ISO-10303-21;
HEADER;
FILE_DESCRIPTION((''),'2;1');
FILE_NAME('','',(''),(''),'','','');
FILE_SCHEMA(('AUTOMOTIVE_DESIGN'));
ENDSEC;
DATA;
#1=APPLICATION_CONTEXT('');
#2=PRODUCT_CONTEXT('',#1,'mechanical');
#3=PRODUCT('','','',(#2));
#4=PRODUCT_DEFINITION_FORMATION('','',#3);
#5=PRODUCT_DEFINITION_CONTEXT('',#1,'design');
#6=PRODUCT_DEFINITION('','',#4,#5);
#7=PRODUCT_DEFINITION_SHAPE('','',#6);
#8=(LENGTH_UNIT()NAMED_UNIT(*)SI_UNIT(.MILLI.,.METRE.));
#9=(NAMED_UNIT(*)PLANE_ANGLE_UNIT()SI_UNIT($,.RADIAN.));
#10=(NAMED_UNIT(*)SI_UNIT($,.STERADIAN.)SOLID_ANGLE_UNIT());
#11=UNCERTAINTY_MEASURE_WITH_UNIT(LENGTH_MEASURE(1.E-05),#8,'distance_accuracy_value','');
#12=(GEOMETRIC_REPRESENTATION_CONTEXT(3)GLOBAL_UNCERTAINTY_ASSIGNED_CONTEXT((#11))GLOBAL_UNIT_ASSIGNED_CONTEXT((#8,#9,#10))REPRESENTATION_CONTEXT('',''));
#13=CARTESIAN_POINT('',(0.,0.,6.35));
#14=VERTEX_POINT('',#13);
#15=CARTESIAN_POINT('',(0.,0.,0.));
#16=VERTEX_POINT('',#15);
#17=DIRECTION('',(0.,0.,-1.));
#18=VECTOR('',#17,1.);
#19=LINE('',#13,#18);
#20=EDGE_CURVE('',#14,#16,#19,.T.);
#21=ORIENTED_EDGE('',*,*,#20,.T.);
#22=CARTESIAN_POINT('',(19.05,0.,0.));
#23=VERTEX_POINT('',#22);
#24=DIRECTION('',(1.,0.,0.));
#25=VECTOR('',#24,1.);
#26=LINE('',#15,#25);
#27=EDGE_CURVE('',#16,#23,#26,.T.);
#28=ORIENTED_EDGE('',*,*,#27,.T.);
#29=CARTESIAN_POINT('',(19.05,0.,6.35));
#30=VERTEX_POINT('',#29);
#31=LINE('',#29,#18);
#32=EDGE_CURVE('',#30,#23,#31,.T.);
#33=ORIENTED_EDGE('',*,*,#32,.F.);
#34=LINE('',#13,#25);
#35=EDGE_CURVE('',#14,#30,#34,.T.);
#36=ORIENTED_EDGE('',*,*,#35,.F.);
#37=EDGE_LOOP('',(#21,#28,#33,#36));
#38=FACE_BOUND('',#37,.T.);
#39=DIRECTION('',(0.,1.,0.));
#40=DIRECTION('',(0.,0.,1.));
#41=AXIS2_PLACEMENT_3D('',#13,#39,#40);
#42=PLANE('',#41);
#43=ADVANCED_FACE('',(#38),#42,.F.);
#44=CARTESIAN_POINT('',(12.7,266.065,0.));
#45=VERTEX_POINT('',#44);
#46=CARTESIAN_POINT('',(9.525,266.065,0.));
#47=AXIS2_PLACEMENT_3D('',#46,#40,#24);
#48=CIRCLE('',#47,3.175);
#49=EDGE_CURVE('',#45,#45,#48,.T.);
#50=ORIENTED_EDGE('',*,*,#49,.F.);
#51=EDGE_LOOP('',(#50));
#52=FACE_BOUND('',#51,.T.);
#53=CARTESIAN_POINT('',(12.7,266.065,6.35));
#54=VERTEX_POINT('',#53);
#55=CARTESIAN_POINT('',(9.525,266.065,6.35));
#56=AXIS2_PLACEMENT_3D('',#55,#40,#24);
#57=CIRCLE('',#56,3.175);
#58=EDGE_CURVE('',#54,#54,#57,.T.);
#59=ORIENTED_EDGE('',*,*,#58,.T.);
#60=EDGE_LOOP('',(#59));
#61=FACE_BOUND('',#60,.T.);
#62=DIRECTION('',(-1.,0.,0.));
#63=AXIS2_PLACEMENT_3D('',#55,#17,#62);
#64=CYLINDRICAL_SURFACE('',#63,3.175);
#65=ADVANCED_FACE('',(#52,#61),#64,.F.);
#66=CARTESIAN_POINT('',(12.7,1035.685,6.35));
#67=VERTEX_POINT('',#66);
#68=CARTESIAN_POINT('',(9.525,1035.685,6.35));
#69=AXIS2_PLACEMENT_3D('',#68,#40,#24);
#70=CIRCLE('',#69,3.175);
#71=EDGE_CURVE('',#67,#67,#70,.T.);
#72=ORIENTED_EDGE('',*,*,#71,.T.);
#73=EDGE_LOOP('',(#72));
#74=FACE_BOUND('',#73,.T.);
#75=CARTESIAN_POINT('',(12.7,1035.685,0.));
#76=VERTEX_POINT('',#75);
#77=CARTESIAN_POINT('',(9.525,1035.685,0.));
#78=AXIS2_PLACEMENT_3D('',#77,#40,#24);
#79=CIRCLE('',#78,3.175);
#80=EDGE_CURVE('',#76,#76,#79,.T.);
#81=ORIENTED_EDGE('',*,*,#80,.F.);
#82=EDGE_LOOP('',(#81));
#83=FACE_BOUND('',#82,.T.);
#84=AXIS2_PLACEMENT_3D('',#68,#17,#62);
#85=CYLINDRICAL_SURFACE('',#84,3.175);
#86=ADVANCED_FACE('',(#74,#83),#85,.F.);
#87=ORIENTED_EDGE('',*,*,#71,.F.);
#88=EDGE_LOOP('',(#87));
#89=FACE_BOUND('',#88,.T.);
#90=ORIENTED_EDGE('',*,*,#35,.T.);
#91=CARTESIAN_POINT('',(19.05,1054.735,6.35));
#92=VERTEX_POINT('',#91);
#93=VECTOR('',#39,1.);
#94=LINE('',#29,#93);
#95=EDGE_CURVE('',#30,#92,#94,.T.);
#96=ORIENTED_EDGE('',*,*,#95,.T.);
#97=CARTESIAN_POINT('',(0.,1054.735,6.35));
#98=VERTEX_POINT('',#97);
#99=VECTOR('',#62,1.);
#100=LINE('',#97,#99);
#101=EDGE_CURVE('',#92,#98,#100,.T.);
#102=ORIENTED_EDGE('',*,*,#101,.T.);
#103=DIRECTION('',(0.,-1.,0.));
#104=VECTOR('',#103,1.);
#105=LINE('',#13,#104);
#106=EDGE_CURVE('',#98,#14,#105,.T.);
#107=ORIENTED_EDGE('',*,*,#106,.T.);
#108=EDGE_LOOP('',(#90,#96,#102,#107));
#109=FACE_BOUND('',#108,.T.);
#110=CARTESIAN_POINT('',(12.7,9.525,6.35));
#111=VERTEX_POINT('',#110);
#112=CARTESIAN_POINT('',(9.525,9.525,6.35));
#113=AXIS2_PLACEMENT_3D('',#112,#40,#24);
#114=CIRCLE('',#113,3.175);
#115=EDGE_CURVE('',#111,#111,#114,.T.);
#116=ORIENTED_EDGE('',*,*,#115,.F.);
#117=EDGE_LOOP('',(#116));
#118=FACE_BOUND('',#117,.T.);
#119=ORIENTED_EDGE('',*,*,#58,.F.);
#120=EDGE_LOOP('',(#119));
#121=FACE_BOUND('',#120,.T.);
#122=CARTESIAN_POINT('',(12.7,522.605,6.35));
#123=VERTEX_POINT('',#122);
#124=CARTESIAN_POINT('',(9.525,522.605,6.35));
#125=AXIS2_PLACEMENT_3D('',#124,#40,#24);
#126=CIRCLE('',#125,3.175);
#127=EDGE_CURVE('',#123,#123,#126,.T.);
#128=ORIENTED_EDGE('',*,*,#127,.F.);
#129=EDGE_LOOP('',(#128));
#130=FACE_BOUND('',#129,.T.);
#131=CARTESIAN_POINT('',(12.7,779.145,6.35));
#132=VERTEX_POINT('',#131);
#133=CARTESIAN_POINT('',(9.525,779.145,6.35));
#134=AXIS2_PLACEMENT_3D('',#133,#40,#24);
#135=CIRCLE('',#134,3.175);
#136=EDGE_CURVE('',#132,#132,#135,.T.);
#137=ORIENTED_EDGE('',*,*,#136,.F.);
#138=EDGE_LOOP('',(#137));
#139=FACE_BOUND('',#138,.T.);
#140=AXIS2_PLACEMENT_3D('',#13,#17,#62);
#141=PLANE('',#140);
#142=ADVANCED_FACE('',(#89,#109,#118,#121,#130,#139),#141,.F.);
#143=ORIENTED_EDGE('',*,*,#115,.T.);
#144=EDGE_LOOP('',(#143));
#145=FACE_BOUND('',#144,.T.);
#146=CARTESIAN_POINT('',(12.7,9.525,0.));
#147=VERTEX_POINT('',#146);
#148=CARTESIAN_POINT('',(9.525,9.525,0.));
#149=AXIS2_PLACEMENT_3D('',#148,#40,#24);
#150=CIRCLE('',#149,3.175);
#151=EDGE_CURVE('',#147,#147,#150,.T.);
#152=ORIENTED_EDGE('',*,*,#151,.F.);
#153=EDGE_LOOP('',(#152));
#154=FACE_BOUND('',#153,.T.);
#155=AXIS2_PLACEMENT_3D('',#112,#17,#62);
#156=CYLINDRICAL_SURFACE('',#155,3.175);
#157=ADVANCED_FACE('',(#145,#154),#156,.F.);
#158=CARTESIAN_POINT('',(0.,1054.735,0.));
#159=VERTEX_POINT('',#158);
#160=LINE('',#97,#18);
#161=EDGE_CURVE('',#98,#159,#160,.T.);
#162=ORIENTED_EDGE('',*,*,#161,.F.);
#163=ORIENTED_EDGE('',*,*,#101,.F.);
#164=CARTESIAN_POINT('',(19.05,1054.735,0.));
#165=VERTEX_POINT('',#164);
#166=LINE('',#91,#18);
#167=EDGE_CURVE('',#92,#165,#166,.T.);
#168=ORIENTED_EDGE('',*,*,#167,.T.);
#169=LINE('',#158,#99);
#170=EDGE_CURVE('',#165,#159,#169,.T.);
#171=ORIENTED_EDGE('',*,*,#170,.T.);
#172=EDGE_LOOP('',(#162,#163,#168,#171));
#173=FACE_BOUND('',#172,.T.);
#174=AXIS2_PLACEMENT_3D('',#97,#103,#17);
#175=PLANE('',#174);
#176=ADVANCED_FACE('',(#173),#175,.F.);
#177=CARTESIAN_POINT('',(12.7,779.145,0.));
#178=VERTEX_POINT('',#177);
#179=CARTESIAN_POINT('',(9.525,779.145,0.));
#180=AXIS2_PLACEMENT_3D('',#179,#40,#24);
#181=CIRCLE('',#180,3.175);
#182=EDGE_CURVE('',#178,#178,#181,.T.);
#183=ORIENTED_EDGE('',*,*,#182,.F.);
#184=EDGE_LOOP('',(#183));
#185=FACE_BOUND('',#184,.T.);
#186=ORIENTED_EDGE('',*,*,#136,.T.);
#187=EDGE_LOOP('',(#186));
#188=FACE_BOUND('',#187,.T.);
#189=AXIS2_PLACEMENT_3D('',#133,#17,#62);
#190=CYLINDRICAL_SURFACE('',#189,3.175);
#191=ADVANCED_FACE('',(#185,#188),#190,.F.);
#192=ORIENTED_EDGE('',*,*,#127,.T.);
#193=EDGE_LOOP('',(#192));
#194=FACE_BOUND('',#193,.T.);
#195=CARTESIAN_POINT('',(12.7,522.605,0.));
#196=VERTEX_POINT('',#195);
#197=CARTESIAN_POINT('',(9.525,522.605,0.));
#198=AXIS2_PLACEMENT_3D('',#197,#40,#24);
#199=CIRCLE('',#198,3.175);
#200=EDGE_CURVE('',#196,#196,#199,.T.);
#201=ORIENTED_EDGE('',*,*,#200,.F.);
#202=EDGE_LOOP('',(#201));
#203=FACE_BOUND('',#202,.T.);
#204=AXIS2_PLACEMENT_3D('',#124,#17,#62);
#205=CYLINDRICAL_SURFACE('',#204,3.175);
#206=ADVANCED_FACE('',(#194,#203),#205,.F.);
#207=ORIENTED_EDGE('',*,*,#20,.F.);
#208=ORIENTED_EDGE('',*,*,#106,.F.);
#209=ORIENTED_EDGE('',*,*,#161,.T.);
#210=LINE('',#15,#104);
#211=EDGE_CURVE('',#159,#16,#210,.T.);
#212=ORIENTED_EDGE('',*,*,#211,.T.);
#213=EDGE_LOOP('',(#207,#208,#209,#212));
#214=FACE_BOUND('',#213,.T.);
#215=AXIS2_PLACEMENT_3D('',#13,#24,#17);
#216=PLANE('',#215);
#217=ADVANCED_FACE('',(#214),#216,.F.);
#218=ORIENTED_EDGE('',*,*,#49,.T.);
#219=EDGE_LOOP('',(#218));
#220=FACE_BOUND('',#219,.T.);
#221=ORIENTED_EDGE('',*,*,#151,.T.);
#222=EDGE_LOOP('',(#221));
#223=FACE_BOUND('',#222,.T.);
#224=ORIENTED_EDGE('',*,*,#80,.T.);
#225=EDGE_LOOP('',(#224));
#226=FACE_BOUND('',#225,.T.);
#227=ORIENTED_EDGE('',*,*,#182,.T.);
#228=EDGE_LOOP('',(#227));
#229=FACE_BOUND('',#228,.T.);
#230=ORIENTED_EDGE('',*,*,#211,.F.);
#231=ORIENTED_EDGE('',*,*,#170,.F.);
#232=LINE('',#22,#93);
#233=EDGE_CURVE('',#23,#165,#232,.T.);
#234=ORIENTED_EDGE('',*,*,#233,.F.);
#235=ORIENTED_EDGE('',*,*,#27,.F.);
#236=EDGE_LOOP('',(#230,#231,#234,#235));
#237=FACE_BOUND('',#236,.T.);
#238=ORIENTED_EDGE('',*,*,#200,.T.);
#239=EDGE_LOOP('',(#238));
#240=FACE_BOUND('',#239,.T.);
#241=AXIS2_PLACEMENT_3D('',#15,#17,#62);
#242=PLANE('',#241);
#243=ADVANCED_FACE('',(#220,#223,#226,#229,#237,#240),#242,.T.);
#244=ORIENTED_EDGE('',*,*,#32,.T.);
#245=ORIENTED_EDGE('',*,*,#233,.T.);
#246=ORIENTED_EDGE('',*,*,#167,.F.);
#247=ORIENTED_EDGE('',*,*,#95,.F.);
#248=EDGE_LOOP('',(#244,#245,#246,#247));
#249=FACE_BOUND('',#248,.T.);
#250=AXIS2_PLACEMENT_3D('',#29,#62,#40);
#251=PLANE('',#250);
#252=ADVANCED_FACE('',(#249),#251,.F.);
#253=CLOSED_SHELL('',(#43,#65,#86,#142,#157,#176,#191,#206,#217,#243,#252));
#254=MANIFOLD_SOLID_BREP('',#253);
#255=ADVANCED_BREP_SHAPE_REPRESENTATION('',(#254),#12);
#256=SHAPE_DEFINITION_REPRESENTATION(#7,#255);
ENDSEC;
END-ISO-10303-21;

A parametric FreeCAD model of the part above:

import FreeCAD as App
import Part
import Sketcher

V = App.Vector
Q = App.Units.Quantity


def add_polygon(sketch, points):
    """Adds a closed chain of lines whose ends are joined by coincident constraints."""
    first, n = sketch.GeometryCount, len(points)
    for a, b in zip(points, points[1:] + points[:1]):
        sketch.addGeometry(Part.LineSegment(App.Vector(*a, 0), App.Vector(*b, 0)), False)
    for i in range(n):
        sketch.addConstraint(Sketcher.Constraint("Coincident", first + i, 2, first + (i + 1) % n, 1))

doc = App.newDocument("Part")
body = doc.addObject("PartDesign::Body", "Body")

# Sketch on XY plane
sketch1 = body.newObject("Sketcher::SketchObject", "Sketch")
sketch1.AttachmentSupport = (doc.getObject("XY_Plane"), [""])
sketch1.MapMode = "FlatFace"
add_polygon(sketch1, [(0, 1054.7), (0, 0), (19.1, 0), (19.1, 1054.7)])  # lines 0-3
sketch1.addGeometry(Part.Circle(V(9.5, 9.5, 0), V(0, 0, 1), 3.2), False)  # 4
sketch1.addGeometry(Part.Circle(V(9.5, 266.1, 0), V(0, 0, 1), 3.2), False)  # 5
sketch1.addGeometry(Part.Circle(V(9.5, 522.6, 0), V(0, 0, 1), 3.2), False)  # 6
sketch1.addGeometry(Part.Circle(V(9.5, 779.1, 0), V(0, 0, 1), 3.2), False)  # 7
sketch1.addGeometry(Part.Circle(V(9.5, 1035.7, 0), V(0, 0, 1), 3.2), False)  # 8
sketch1.addConstraint([
    Sketcher.Constraint("Vertical", 0),
    Sketcher.Constraint("Horizontal", 1),
    Sketcher.Constraint("Vertical", 2),
    Sketcher.Constraint("Horizontal", 3),
    Sketcher.Constraint("Coincident", 0, 2, -1, 1),
    Sketcher.Constraint("Equal", 4, 5),
    Sketcher.Constraint("Equal", 5, 6),
    Sketcher.Constraint("Equal", 6, 7),
    Sketcher.Constraint("Equal", 7, 8),
    Sketcher.Constraint("Vertical", 4, 3, 5, 3),
    Sketcher.Constraint("Vertical", 5, 3, 6, 3),
    Sketcher.Constraint("Vertical", 6, 3, 7, 3),
    Sketcher.Constraint("Vertical", 7, 3, 8, 3),
    Sketcher.Constraint("Diameter", 4, Q("0.25 in")),
    Sketcher.Constraint("DistanceX", 1, 1, 1, 2, Q("0.75 in")),
    Sketcher.Constraint("DistanceY", 4, 3, 5, 3, Q("10.1 in")),
    Sketcher.Constraint("DistanceY", 5, 3, 6, 3, Q("10.1 in")),
    Sketcher.Constraint("DistanceY", 6, 3, 7, 3, Q("10.1 in")),
    Sketcher.Constraint("DistanceY", 7, 3, 8, 3, Q("10.1 in")),
    Sketcher.Constraint("DistanceY", 0, 2, 0, 1, Q("41.525 in")),
    Sketcher.Constraint("DistanceY", 8, 3, 2, 2, Q("0.75 in")),
    Sketcher.Constraint("DistanceX", -1, 1, 4, 3, Q("0.375 in")),
])
pad1 = body.newObject("PartDesign::Pad", "Pad")
pad1.Profile = sketch1
pad1.Length = Q("0.25 in")

doc.recompute()
